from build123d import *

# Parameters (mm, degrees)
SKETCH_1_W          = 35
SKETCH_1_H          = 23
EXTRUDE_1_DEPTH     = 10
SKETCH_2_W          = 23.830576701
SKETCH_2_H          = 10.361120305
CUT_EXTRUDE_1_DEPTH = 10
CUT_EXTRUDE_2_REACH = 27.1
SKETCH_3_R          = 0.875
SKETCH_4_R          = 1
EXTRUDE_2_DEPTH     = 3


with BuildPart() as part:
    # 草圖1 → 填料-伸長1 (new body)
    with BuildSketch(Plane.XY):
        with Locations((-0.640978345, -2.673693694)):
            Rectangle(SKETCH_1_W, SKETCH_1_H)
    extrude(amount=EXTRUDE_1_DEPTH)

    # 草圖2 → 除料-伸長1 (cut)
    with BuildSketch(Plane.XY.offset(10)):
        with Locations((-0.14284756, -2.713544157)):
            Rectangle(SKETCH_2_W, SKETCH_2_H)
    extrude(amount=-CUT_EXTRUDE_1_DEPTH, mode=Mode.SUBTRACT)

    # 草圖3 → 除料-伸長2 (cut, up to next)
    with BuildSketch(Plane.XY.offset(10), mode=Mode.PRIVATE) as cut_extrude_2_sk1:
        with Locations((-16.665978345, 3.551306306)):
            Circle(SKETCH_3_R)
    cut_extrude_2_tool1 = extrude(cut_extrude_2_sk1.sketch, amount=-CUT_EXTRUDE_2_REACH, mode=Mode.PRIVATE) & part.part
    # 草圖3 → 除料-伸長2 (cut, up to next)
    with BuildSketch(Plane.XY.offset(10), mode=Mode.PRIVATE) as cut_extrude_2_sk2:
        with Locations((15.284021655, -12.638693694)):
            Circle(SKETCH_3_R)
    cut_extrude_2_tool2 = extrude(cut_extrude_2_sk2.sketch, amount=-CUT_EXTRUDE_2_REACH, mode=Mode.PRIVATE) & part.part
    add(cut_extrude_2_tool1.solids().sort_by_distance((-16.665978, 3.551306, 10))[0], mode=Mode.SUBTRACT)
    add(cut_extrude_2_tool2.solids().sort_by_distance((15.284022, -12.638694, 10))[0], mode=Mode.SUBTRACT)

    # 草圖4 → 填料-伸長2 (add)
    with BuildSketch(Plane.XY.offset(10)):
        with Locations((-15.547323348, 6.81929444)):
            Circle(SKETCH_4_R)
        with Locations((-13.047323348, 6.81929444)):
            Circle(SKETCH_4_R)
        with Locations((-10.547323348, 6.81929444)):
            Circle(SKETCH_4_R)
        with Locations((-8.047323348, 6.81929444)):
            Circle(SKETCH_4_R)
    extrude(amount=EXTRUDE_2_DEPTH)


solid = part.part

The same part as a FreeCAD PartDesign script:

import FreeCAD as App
import Part
import Sketcher
from FreeCAD import Vector
Q = App.Units.Quantity


def add_polygon(sketch, points):
    """Adds a closed chain of lines whose ends are joined by coincident constraints."""
    first, n = sketch.GeometryCount, len(points)
    for a, b in zip(points, points[1:] + points[:1]):
        sketch.addGeometry(Part.LineSegment(App.Vector(*a, 0), App.Vector(*b, 0)), False)
    for i in range(n):
        sketch.addConstraint(Sketcher.Constraint("Coincident", first + i, 2, first + (i + 1) % n, 1))

doc = App.newDocument("Part")
body = doc.addObject("PartDesign::Body", "Body")

# Sketch on XY plane
sketch1 = body.newObject("Sketcher::SketchObject", "Sketch")
sketch1.AttachmentSupport = (doc.getObject("XY_Plane"), [""])
sketch1.MapMode = "FlatFace"
add_polygon(sketch1, [(-18.140978, 8.826306), (-18.140978, -14.173694), (16.859022, -14.173694), (16.859022, 8.826306)])  # lines 0-3
sketch1.addConstraint(Sketcher.Constraint("Vertical", 0))
sketch1.addConstraint(Sketcher.Constraint("Horizontal", 1))
sketch1.addConstraint(Sketcher.Constraint("Vertical", 2))
sketch1.addConstraint(Sketcher.Constraint("Horizontal", 3))
sketch1.addConstraint(Sketcher.Constraint("DistanceX", 1, 1, 1, 2, Q("35 mm")))
sketch1.addConstraint(Sketcher.Constraint("DistanceY", 0, 2, 0, 1, Q("23 mm")))
sketch1.addConstraint(Sketcher.Constraint("DistanceX", 0, 2, -1, 1, Q("18.140978 mm")))
sketch1.addConstraint(Sketcher.Constraint("DistanceY", 0, 2, -1, 1, Q("14.173694 mm")))
pad1 = body.newObject("PartDesign::Pad", "Pad")
pad1.Profile = sketch1
pad1.Length = 10

# Sketch on XY plane
sketch2 = body.newObject("Sketcher::SketchObject", "Sketch001")
sketch2.AttachmentSupport = (doc.getObject("XY_Plane"), [""])
sketch2.MapMode = "FlatFace"
sketch2.AttachmentOffset = App.Placement(Vector(0, 0, 10), App.Rotation())
add_polygon(sketch2, [(-12.058136, 2.467016), (-12.058136, -7.894104), (11.772441, -7.894104), (11.772441, 2.467016)])  # lines 0-3
sketch2.addConstraint(Sketcher.Constraint("Vertical", 0))
sketch2.addConstraint(Sketcher.Constraint("Horizontal", 1))
sketch2.addConstraint(Sketcher.Constraint("Vertical", 2))
sketch2.addConstraint(Sketcher.Constraint("Horizontal", 3))
sketch2.addConstraint(Sketcher.Constraint("DistanceY", 0, 2, 0, 1, Q("10.36112 mm")))
sketch2.addConstraint(Sketcher.Constraint("DistanceX", 1, 1, 1, 2, Q("23.830577 mm")))
sketch2.addConstraint(Sketcher.Constraint("DistanceX", -1, 1, 1, 2, Q("11.772441 mm")))
sketch2.addConstraint(Sketcher.Constraint("DistanceY", 0, 2, -1, 1, Q("7.894104 mm")))
pocket1 = body.newObject("PartDesign::Pocket", "Pocket")
pocket1.Profile = sketch2
pocket1.Length = 10

# Sketch on XY plane
sketch3 = body.newObject("Sketcher::SketchObject", "Sketch002")
sketch3.AttachmentSupport = (doc.getObject("XY_Plane"), [""])
sketch3.MapMode = "FlatFace"
sketch3.AttachmentOffset = App.Placement(Vector(0, 0, 10), App.Rotation())
sketch3.addGeometry(Part.Circle(Vector(-16.665978, 3.551306, 0), Vector(0, 0, 1), 0.875), False)
sketch3.addConstraint(Sketcher.Constraint("Diameter", 0, Q("1.75 mm")))
sketch3.addConstraint(Sketcher.Constraint("DistanceX", 0, 3, -1, 1, Q("16.665978 mm")))
sketch3.addConstraint(Sketcher.Constraint("DistanceY", -1, 1, 0, 3, Q("3.551306 mm")))
pocket2 = body.newObject("PartDesign::Pocket", "Pocket001")
pocket2.Profile = sketch3
pocket2.Type = "UpToFirst"

# Sketch on XY plane
sketch4 = body.newObject("Sketcher::SketchObject", "Sketch003")
sketch4.AttachmentSupport = (doc.getObject("XY_Plane"), [""])
sketch4.MapMode = "FlatFace"
sketch4.AttachmentOffset = App.Placement(Vector(0, 0, 10), App.Rotation())
sketch4.addGeometry(Part.Circle(Vector(15.284022, -12.638694, 0), Vector(0, 0, 1), 0.875), False)
sketch4.addConstraint(Sketcher.Constraint("Diameter", 0, Q("1.75 mm")))
sketch4.addConstraint(Sketcher.Constraint("DistanceX", -1, 1, 0, 3, Q("15.284022 mm")))
sketch4.addConstraint(Sketcher.Constraint("DistanceY", 0, 3, -1, 1, Q("12.638694 mm")))
pocket3 = body.newObject("PartDesign::Pocket", "Pocket002")
pocket3.Profile = sketch4
pocket3.Type = "UpToFirst"

# Sketch on XY plane
sketch5 = body.newObject("Sketcher::SketchObject", "Sketch004")
sketch5.AttachmentSupport = (doc.getObject("XY_Plane"), [""])
sketch5.MapMode = "FlatFace"
sketch5.AttachmentOffset = App.Placement(Vector(0, 0, 10), App.Rotation())
sketch5.addGeometry(Part.Circle(Vector(-15.547323, 6.819294, 0), Vector(0, 0, 1), 1), False)
sketch5.addGeometry(Part.Circle(Vector(-13.047323, 6.819294, 0), Vector(0, 0, 1), 1), False)
sketch5.addGeometry(Part.Circle(Vector(-10.547323, 6.819294, 0), Vector(0, 0, 1), 1), False)
sketch5.addGeometry(Part.Circle(Vector(-8.047323, 6.819294, 0), Vector(0, 0, 1), 1), False)
sketch5.addConstraint(Sketcher.Constraint("Equal", 0, 1))
sketch5.addConstraint(Sketcher.Constraint("Equal", 1, 2))
sketch5.addConstraint(Sketcher.Constraint("Equal", 2, 3))
sketch5.addConstraint(Sketcher.Constraint("Horizontal", 0, 3, 1, 3))
sketch5.addConstraint(Sketcher.Constraint("Horizontal", 1, 3, 2, 3))
sketch5.addConstraint(Sketcher.Constraint("Horizontal", 2, 3, 3, 3))
sketch5.addConstraint(Sketcher.Constraint("Diameter", 0, Q("2 mm")))
sketch5.addConstraint(Sketcher.Constraint("DistanceX", 0, 3, 2, 3, Q("5 mm")))
sketch5.addConstraint(Sketcher.Constraint("DistanceX", 1, 3, 3, 3, Q("5 mm")))
sketch5.addConstraint(Sketcher.Constraint("DistanceX", 0, 3, 1, 3, Q("2.5 mm")))
sketch5.addConstraint(Sketcher.Constraint("DistanceX", 0, 3, -1, 1, Q("15.547323 mm")))
sketch5.addConstraint(Sketcher.Constraint("DistanceY", -1, 1, 0, 3, Q("6.819294 mm")))
pad2 = body.newObject("PartDesign::Pad", "Pad001")
pad2.Profile = sketch5
pad2.Length = 3

doc.recompute()
